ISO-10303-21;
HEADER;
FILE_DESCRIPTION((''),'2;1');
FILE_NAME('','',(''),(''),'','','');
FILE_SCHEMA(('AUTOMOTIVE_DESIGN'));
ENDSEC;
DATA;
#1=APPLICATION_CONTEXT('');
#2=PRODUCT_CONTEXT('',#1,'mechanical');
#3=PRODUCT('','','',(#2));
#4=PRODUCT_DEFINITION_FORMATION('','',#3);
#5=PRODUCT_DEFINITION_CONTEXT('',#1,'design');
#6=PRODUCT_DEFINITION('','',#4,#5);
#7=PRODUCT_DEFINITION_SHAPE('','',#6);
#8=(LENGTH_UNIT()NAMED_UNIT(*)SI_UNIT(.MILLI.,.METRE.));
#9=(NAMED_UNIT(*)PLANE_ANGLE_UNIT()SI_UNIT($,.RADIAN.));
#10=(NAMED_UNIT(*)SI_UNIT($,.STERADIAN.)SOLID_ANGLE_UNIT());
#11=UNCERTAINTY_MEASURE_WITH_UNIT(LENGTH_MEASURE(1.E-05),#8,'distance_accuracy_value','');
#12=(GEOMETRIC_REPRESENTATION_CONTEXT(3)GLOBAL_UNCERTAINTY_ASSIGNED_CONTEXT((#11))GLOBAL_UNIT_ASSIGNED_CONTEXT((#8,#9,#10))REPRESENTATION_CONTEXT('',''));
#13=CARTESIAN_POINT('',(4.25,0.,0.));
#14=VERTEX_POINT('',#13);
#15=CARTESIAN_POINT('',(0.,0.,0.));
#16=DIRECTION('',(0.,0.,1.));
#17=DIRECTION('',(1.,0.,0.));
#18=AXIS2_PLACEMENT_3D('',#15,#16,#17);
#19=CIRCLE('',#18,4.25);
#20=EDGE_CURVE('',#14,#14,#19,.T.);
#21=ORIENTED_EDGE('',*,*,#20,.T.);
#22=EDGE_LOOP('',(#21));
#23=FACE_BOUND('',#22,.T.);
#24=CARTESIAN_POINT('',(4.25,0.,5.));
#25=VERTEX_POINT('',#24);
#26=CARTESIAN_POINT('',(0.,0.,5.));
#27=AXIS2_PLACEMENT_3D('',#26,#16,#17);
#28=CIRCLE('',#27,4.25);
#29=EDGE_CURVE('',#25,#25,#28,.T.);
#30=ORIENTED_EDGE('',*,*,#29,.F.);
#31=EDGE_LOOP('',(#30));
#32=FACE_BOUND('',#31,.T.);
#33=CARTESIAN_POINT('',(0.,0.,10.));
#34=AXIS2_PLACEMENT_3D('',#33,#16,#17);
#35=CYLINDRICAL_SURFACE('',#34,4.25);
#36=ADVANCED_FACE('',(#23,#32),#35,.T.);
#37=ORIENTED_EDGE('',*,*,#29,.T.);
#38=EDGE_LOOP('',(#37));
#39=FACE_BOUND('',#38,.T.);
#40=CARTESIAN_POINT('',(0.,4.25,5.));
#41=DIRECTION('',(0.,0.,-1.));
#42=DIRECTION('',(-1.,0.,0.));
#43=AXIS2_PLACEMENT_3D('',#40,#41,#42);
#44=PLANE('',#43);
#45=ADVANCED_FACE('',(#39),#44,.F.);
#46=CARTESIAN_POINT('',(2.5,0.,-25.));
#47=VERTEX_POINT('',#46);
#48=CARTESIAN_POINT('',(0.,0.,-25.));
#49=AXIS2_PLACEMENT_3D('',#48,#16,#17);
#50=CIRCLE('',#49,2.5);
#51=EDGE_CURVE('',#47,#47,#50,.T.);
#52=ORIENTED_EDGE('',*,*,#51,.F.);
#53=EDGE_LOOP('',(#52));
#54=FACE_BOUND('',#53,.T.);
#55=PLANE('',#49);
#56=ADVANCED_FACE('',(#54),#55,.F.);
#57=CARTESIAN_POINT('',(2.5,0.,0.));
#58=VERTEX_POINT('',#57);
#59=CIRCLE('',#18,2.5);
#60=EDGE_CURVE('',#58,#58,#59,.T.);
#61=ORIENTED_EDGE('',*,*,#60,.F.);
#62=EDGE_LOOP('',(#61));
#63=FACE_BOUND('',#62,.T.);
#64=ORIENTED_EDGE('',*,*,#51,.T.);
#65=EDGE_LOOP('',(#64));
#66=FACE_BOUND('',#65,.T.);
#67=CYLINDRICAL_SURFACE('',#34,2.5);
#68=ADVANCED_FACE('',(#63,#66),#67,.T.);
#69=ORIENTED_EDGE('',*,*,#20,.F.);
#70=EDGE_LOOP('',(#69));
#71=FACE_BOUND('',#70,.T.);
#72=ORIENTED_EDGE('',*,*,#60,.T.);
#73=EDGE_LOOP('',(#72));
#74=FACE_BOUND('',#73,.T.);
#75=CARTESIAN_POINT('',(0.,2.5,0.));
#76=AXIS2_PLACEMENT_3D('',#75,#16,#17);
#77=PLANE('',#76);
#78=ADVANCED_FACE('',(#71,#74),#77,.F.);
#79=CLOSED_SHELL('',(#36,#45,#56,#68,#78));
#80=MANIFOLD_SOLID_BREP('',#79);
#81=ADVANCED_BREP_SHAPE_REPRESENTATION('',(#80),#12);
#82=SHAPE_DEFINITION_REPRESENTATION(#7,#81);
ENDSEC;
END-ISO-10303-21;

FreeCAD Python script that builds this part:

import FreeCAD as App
import Part
import Sketcher

V = App.Vector
Q = App.Units.Quantity

doc = App.newDocument("Part")
body = doc.addObject("PartDesign::Body", "Body")

# Sketch on YZ plane
sketch1 = doc.addObject("Sketcher::SketchObject", "Sketch")
body.addObject(sketch1)
sketch1.AttachmentSupport = (doc.YZ_Plane, [""])
sketch1.MapMode = "FlatFace"
sketch1.addGeometry([
    Part.LineSegment(V(0, -25, 0), V(2.5, -25, 0)),  # 0
    Part.LineSegment(V(2.5, -25, 0), V(2.5, 0, 0)),  # 1
    Part.LineSegment(V(2.5, 0, 0), V(4.25, 0, 0)),  # 2
    Part.LineSegment(V(4.25, 0, 0), V(4.25, 5, 0)),  # 3
    Part.LineSegment(V(4.25, 5, 0), V(0, 5, 0)),  # 4
    Part.LineSegment(V(0, 5, 0), V(0, -25, 0)),  # 5
], False)
sketch1.addConstraint([
    Sketcher.Constraint("Coincident", 0, 2, 1, 1),
    Sketcher.Constraint("Coincident", 1, 2, 2, 1),
    Sketcher.Constraint("Coincident", 2, 2, 3, 1),
    Sketcher.Constraint("Coincident", 3, 2, 4, 1),
    Sketcher.Constraint("Coincident", 4, 2, 5, 1),
    Sketcher.Constraint("Coincident", 5, 2, 0, 1),
    Sketcher.Constraint("Horizontal", 0),
    Sketcher.Constraint("Vertical", 1),
    Sketcher.Constraint("Horizontal", 2),
    Sketcher.Constraint("Vertical", 3),
    Sketcher.Constraint("Horizontal", 4),
    Sketcher.Constraint("Vertical", 5),
    Sketcher.Constraint("PointOnObject", 1, 2, -1),
    Sketcher.Constraint("PointOnObject", 4, 2, -2),
    Sketcher.Constraint("DistanceY", 1, 1, 1, 2, Q("25 mm")),
    Sketcher.Constraint("DistanceY", 3, 1, 3, 2, Q("5 mm")),
    Sketcher.Constraint("DistanceX", 0, 1, 0, 2, Q("2.5 mm")),
    Sketcher.Constraint("DistanceX", 2, 1, 2, 2, Q("1.75 mm")),
])
revolution = doc.addObject("PartDesign::Revolution", "Revolution")
body.addObject(revolution)
revolution.Profile = sketch1
revolution.ReferenceAxis = (sketch1, ["V_Axis"])
revolution.Angle = 360

doc.recompute()
